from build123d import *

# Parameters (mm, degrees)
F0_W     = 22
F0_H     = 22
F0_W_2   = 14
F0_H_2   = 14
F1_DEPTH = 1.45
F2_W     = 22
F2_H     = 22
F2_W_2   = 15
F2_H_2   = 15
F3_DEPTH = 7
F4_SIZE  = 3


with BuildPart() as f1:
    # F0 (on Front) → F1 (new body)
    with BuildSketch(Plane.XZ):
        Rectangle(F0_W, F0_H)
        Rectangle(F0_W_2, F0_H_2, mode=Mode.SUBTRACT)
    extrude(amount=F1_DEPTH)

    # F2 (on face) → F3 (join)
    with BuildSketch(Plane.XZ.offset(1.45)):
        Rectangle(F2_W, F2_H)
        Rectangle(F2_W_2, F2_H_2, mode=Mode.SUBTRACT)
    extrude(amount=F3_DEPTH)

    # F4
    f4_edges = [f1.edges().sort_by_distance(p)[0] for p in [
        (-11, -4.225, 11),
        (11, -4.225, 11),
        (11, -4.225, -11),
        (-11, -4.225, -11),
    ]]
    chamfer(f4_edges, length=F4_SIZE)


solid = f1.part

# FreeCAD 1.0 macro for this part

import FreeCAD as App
import Part
import Sketcher

V = App.Vector


def edges_at(feature, points):
    """Names of the edges that pass closest to the given points."""
    edges = feature.Shape.Edges
    near = lambda p: min(range(len(edges)), key=lambda i: edges[i].distToShape(Part.Vertex(*p))[0])
    return sorted({f"Edge{near(p) + 1}" for p in points})


def add_polygon(sketch, points):
    """Adds a closed chain of lines whose ends are joined by coincident constraints."""
    first, n = sketch.GeometryCount, len(points)
    for a, b in zip(points, points[1:] + points[:1]):
        sketch.addGeometry(Part.LineSegment(App.Vector(*a, 0), App.Vector(*b, 0)), False)
    for i in range(n):
        sketch.addConstraint(Sketcher.Constraint("Coincident", first + i, 2, first + (i + 1) % n, 1))

doc = App.newDocument("Part")
body = doc.addObject("PartDesign::Body", "Body")

# Sketch on XZ plane
sketch1 = body.newObject("Sketcher::SketchObject", "Sketch")
sketch1.AttachmentSupport = (doc.getObject("XZ_Plane"), [""])
sketch1.MapMode = "FlatFace"
add_polygon(sketch1, [(-11, 11), (-11, -11), (11, -11), (11, 11)])  # lines 0-3
add_polygon(sketch1, [(7, -7), (-7, -7), (-7, 7), (7, 7)])  # lines 4-7
sketch1.addConstraint(Sketcher.Constraint("Vertical", 0))
sketch1.addConstraint(Sketcher.Constraint("Horizontal", 1))
sketch1.addConstraint(Sketcher.Constraint("Vertical", 2))
sketch1.addConstraint(Sketcher.Constraint("Horizontal", 3))
sketch1.addConstraint(Sketcher.Constraint("Horizontal", 4))
sketch1.addConstraint(Sketcher.Constraint("Vertical", 5))
sketch1.addConstraint(Sketcher.Constraint("Horizontal", 6))
sketch1.addConstraint(Sketcher.Constraint("Vertical", 7))
sketch1.addConstraint(Sketcher.Constraint("Symmetric", 0, 2, 2, 2, -1, 1))
sketch1.addConstraint(Sketcher.Constraint("Symmetric", 4, 2, 6, 2, -1, 1))
sketch1.addConstraint(Sketcher.Constraint("Equal", 3, 0))
sketch1.addConstraint(Sketcher.Constraint("Equal", 6, 5))
sketch1.addConstraint(Sketcher.Constraint("DistanceX", 1, 1, 1, 2, 22.0))
sketch1.addConstraint(Sketcher.Constraint("DistanceX", 4, 2, 4, 1, 14.0))
pad1 = body.newObject("PartDesign::Pad", "Pad")
pad1.Profile = sketch1
pad1.Length = 1.45

# Sketch on XZ plane
sketch2 = body.newObject("Sketcher::SketchObject", "Sketch001")
sketch2.AttachmentSupport = (doc.getObject("XZ_Plane"), [""])
sketch2.MapMode = "FlatFace"
sketch2.AttachmentOffset = App.Placement(V(0, 0, 1.45), App.Rotation())
add_polygon(sketch2, [(-11, 11), (-11, -11), (11, -11), (11, 11)])  # lines 0-3
add_polygon(sketch2, [(8, -8), (-8, -8), (-8, 8), (8, 8)])  # lines 4-7
sketch2.addConstraint(Sketcher.Constraint("Vertical", 0))
sketch2.addConstraint(Sketcher.Constraint("Horizontal", 1))
sketch2.addConstraint(Sketcher.Constraint("Vertical", 2))
sketch2.addConstraint(Sketcher.Constraint("Horizontal", 3))
sketch2.addConstraint(Sketcher.Constraint("Horizontal", 4))
sketch2.addConstraint(Sketcher.Constraint("Vertical", 5))
sketch2.addConstraint(Sketcher.Constraint("Horizontal", 6))
sketch2.addConstraint(Sketcher.Constraint("Vertical", 7))
sketch2.addConstraint(Sketcher.Constraint("Symmetric", 0, 2, 2, 2, -1, 1))
sketch2.addConstraint(Sketcher.Constraint("Symmetric", 4, 2, 6, 2, -1, 1))
sketch2.addConstraint(Sketcher.Constraint("Equal", 3, 0))
sketch2.addConstraint(Sketcher.Constraint("Equal", 6, 5))
sketch2.addConstraint(Sketcher.Constraint("DistanceX", 1, 1, 1, 2, 22.0))
sketch2.addConstraint(Sketcher.Constraint("DistanceX", 4, 2, 4, 1, 15.0))
pad2 = body.newObject("PartDesign::Pad", "Pad001")
pad2.Profile = sketch2
pad2.Length = 7
doc.recompute()

chamfer = body.newObject("PartDesign::Chamfer", "Chamfer")
chamfer.Base = (pad2, edges_at(pad2, [
    (-11, -4.225, 11),
    (11, -4.225, 11),
    (11, -4.225, -11),
    (-11, -4.225, -11),
]))
chamfer.Size = 3

doc.recompute()
